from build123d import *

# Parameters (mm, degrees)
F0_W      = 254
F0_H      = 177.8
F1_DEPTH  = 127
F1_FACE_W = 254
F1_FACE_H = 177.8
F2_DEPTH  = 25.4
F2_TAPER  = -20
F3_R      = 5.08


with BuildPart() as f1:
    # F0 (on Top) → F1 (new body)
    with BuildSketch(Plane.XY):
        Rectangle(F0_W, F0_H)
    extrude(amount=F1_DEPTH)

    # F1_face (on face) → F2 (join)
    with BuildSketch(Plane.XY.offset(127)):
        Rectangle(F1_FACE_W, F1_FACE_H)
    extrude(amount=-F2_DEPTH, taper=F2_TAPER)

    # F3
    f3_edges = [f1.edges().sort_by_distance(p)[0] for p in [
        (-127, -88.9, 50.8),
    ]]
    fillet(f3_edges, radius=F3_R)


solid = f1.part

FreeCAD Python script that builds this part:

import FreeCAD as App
import Part
import Sketcher
from FreeCAD import Vector
Q = App.Units.Quantity


def edges_at(feature, points):
    """Names of the edges that pass closest to the given points."""
    edges = feature.Shape.Edges
    near = lambda p: min(range(len(edges)), key=lambda i: edges[i].distToShape(Part.Vertex(*p))[0])
    return sorted({f"Edge{near(p) + 1}" for p in points})


def add_polygon(sketch, points):
    """Adds a closed chain of lines whose ends are joined by coincident constraints."""
    first, n = sketch.GeometryCount, len(points)
    for a, b in zip(points, points[1:] + points[:1]):
        sketch.addGeometry(Part.LineSegment(App.Vector(*a, 0), App.Vector(*b, 0)), False)
    for i in range(n):
        sketch.addConstraint(Sketcher.Constraint("Coincident", first + i, 2, first + (i + 1) % n, 1))

doc = App.newDocument("Part")
params = doc.addObject("Spreadsheet::Sheet", "Params")
for row, (alias, value) in enumerate([
    ("sketch1_width", "10 in"),
    ("sketch1_height", "7 in"),
    ("pad1_length", "5 in"),
    ("sketch2_width", "10 in"),
    ("sketch2_height", "7 in"),
    ("pad2_length", "1 in"),
    ("pad2_taper", "20 deg"),
    ("fillet_radius", "0.2 in"),
], start=1):
    params.set(f"A{row}", alias)
    params.set(f"B{row}", "=" + value)
    params.setAlias(f"B{row}", alias)

body = doc.addObject("PartDesign::Body", "Body")

# Sketch on XY plane
sketch1 = doc.addObject("Sketcher::SketchObject", "Sketch")
body.addObject(sketch1)
sketch1.AttachmentSupport = (doc.XY_Plane, [""])
sketch1.MapMode = "FlatFace"
add_polygon(sketch1, [(-127, 88.9), (-127, -88.9), (127, -88.9), (127, 88.9)])  # lines 0-3
sketch1.addConstraint([
    Sketcher.Constraint("Vertical", 0),
    Sketcher.Constraint("Horizontal", 1),
    Sketcher.Constraint("Vertical", 2),
    Sketcher.Constraint("Horizontal", 3),
    Sketcher.Constraint("Symmetric", 0, 2, 2, 2, -1, 1),
    Sketcher.Constraint("DistanceX", 1, 1, 1, 2, Q("10 in")),
    Sketcher.Constraint("DistanceY", 0, 2, 0, 1, Q("7 in")),
])
sketch1.setExpression("Constraints[9]", "Params.sketch1_width")
sketch1.setExpression("Constraints[10]", "Params.sketch1_height")
pad1 = doc.addObject("PartDesign::Pad", "Pad")
body.addObject(pad1)
pad1.Profile = sketch1
pad1.setExpression("Length", "Params.pad1_length")

# Sketch on XY plane
sketch2 = doc.addObject("Sketcher::SketchObject", "Sketch001")
body.addObject(sketch2)
sketch2.AttachmentSupport = (doc.XY_Plane, [""])
sketch2.MapMode = "FlatFace"
sketch2.AttachmentOffset = App.Placement(Vector(0, 0, 5 * 25.4), App.Rotation())
add_polygon(sketch2, [(-127, 88.9), (-127, -88.9), (127, -88.9), (127, 88.9)])  # lines 0-3
sketch2.addConstraint([
    Sketcher.Constraint("Vertical", 0),
    Sketcher.Constraint("Horizontal", 1),
    Sketcher.Constraint("Vertical", 2),
    Sketcher.Constraint("Horizontal", 3),
    Sketcher.Constraint("Symmetric", 0, 2, 2, 2, -1, 1),
    Sketcher.Constraint("DistanceX", 1, 1, 1, 2, Q("10 in")),
    Sketcher.Constraint("DistanceY", 0, 2, 0, 1, Q("7 in")),
])
sketch2.setExpression("Constraints[9]", "Params.sketch2_width")
sketch2.setExpression("Constraints[10]", "Params.sketch2_height")
pad2 = doc.addObject("PartDesign::Pad", "Pad001")
body.addObject(pad2)
pad2.Profile = sketch2
pad2.setExpression("Length", "Params.pad2_length")
pad2.Reversed = True
pad2.setExpression("TaperAngle", "Params.pad2_taper")
doc.recompute()

fillet = doc.addObject("PartDesign::Fillet", "Fillet")
body.addObject(fillet)
fillet.Base = (pad2, edges_at(pad2, [(-127, -88.9, 50.8)]))
fillet.setExpression("Radius", "Params.fillet_radius")

doc.recompute()
